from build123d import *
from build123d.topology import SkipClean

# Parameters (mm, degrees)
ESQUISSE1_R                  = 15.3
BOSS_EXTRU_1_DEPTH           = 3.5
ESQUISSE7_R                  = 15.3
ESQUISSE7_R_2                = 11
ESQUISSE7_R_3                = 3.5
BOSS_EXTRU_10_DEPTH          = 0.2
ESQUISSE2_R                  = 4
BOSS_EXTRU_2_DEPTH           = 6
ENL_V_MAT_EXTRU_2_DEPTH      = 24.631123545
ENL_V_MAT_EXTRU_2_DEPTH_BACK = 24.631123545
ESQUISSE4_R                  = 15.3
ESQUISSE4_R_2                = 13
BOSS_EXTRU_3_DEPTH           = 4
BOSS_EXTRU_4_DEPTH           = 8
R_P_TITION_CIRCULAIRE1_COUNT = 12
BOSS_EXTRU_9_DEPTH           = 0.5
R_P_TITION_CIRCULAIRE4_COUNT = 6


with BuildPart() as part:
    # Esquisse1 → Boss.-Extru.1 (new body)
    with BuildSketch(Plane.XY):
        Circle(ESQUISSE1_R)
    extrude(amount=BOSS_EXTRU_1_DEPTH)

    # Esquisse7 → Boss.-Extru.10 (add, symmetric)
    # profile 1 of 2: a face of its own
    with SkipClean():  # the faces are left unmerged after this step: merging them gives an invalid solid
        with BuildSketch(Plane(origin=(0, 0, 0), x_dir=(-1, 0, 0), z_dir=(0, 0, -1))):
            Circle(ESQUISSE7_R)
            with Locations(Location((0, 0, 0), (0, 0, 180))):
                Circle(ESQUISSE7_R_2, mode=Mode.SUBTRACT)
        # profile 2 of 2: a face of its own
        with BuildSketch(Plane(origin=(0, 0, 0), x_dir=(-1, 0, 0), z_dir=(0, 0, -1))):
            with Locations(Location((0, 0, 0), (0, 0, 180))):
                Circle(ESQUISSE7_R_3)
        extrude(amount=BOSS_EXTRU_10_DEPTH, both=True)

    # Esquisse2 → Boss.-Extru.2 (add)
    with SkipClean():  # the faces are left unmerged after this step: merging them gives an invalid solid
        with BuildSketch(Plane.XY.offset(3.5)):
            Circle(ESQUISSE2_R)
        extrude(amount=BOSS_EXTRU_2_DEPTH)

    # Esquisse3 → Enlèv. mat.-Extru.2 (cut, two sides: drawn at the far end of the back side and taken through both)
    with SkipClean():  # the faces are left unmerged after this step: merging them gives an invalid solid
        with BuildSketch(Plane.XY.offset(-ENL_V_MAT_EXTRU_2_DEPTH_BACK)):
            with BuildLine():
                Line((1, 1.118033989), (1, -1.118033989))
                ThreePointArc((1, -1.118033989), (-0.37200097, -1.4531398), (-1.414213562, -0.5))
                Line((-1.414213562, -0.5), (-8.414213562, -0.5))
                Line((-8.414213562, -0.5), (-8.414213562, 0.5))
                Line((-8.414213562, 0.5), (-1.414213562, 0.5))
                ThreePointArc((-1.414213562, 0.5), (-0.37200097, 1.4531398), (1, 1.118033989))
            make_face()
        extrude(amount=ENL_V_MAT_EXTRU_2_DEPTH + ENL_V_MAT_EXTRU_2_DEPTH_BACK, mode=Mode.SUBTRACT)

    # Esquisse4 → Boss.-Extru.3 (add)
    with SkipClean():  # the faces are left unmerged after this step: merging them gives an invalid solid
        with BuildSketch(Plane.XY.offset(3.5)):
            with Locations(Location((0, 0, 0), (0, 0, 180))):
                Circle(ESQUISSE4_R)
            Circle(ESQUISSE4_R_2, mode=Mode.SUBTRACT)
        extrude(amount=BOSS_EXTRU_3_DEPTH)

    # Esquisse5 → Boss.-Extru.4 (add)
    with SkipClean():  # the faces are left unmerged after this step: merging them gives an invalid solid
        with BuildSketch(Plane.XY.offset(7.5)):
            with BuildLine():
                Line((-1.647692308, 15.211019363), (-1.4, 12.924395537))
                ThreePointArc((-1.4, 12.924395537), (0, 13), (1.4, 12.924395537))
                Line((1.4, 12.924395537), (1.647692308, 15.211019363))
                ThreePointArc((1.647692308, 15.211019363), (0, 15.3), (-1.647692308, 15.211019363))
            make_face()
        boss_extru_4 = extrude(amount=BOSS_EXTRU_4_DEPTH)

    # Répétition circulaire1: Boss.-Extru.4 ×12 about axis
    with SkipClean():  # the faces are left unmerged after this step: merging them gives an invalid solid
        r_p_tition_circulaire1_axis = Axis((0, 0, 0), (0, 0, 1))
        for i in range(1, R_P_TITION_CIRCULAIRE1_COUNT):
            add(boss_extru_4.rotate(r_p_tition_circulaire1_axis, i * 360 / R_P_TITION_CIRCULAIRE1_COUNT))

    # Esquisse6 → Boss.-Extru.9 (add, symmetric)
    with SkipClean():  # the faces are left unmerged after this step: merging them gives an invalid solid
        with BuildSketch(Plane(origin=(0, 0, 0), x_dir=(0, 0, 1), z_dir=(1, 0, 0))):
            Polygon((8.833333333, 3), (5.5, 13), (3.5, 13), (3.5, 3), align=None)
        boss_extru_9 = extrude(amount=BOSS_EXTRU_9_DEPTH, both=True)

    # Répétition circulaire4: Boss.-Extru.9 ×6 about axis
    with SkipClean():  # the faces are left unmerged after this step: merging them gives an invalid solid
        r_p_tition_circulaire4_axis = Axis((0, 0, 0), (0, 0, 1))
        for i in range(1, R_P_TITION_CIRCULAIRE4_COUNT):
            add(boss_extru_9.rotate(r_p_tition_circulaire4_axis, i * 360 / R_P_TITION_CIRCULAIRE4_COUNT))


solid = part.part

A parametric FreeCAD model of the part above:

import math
import FreeCAD as App
import Part
import Sketcher

V = App.Vector


def add_polygon(sketch, points):
    """Adds a closed chain of lines whose ends are joined by coincident constraints."""
    first, n = sketch.GeometryCount, len(points)
    for a, b in zip(points, points[1:] + points[:1]):
        sketch.addGeometry(Part.LineSegment(App.Vector(*a, 0), App.Vector(*b, 0)), False)
    for i in range(n):
        sketch.addConstraint(Sketcher.Constraint("Coincident", first + i, 2, first + (i + 1) % n, 1))

doc = App.newDocument("Part")
params = doc.addObject("Spreadsheet::Sheet", "Params")
for row, (alias, value) in enumerate([
    ("sketch1_diameter", "30.6 mm"),
    ("pad1_length", "3.5 mm"),
    ("sketch2_diameter", "22 mm"),
    ("sketch2_diameter2", "7 mm"),
    ("sketch2_diameter3", "30.6 mm"),
    ("pad2_length", "0.4 mm"),
    ("sketch3_diameter", "8 mm"),
    ("pad3_length", "6 mm"),
    ("sketch4_radius", "1.5 mm"),
    ("sketch4_width", "7 mm"),
    ("sketch4_height", "1 mm"),
    ("sketch5_diameter", "26 mm"),
    ("sketch5_diameter2", "30.6 mm"),
    ("pad4_length", "4 mm"),
    ("sketch6_radius", "13 mm"),
    ("sketch6_radius2", "15.3 mm"),
    ("pad5_length", "8 mm"),
    ("sketch7_width", "10 mm"),
    ("sketch7_height", "2 mm"),
    ("pad6_length", "1 mm"),
], start=1):
    params.set(f"A{row}", alias)
    params.set(f"B{row}", "=" + value)
    params.setAlias(f"B{row}", alias)

body = doc.addObject("PartDesign::Body", "Body")

# Sketch on XY plane
sketch1 = doc.addObject("Sketcher::SketchObject", "Sketch")
body.addObject(sketch1)
sketch1.AttachmentSupport = (doc.XY_Plane, [""])
sketch1.MapMode = "FlatFace"
sketch1.addGeometry(Part.Circle(V(0, 0, 0), V(0, 0, 1), 15), False)
sketch1.addConstraint([
    Sketcher.Constraint("Coincident", 0, 3, -1, 1),
    Sketcher.Constraint("Diameter", 0, 30.6),
])
sketch1.setExpression("Constraints[1]", "Params.sketch1_diameter")
pad1 = doc.addObject("PartDesign::Pad", "Pad")
body.addObject(pad1)
pad1.Profile = sketch1
pad1.setExpression("Length", "Params.pad1_length")

# Sketch on XY plane
sketch2 = doc.addObject("Sketcher::SketchObject", "Sketch001")
body.addObject(sketch2)
sketch2.AttachmentSupport = (doc.XY_Plane, [""])
sketch2.MapMode = "FlatFace"
sketch2.addGeometry([
    Part.Circle(V(0, 0, 0), V(0, 0, 1), 15.3),
    Part.Circle(V(0, 0, 0), V(0, 0, 1), 11),
    Part.Circle(V(0, 0, 0), V(0, 0, 1), 3.5),
], False)
sketch2.addConstraint([
    Sketcher.Constraint("Coincident", 0, 3, -1, 1),
    Sketcher.Constraint("Coincident", 1, 3, -1, 1),
    Sketcher.Constraint("Coincident", 2, 3, -1, 1),
    Sketcher.Constraint("Diameter", 1, 22.0),
    Sketcher.Constraint("Diameter", 2, 7.0),
    Sketcher.Constraint("Diameter", 0, 30.6),
])
sketch2.setExpression("Constraints[3]", "Params.sketch2_diameter")
sketch2.setExpression("Constraints[4]", "Params.sketch2_diameter2")
sketch2.setExpression("Constraints[5]", "Params.sketch2_diameter3")
pad2 = doc.addObject("PartDesign::Pad", "Pad001")
body.addObject(pad2)
pad2.Profile = sketch2
pad2.setExpression("Length", "Params.pad2_length")
pad2.Midplane = True

# Sketch on XY plane
sketch3 = doc.addObject("Sketcher::SketchObject", "Sketch002")
body.addObject(sketch3)
sketch3.AttachmentSupport = (doc.XY_Plane, [""])
sketch3.MapMode = "FlatFace"
sketch3.AttachmentOffset = App.Placement(V(0, 0, 3.5), App.Rotation())
sketch3.addGeometry(Part.Circle(V(0, 0, 0), V(0, 0, 1), 4), False)
sketch3.addConstraint([
    Sketcher.Constraint("Coincident", 0, 3, -1, 1),
    Sketcher.Constraint("Diameter", 0, 8.0),
])
sketch3.setExpression("Constraints[1]", "Params.sketch3_diameter")
pad3 = doc.addObject("PartDesign::Pad", "Pad002")
body.addObject(pad3)
pad3.Profile = sketch3
pad3.setExpression("Length", "Params.pad3_length")

# Sketch on XY plane
sketch4 = doc.addObject("Sketcher::SketchObject", "Sketch003")
body.addObject(sketch4)
sketch4.AttachmentSupport = (doc.XY_Plane, [""])
sketch4.MapMode = "FlatFace"
sketch4.addGeometry([
    Part.LineSegment(V(1, -1.1, 0), V(1, 1.1, 0)),  # 0
    Part.ArcOfCircle(Part.Circle(V(0, 0, 0), V(0, 0, 1), 1.5), math.radians(48), math.radians(161)),  # 1
    Part.LineSegment(V(-1.4, 0.5, 0), V(-8.4, 0.5, 0)),  # 2
    Part.LineSegment(V(-8.4, 0.5, 0), V(-8.4, -0.5, 0)),  # 3
    Part.LineSegment(V(-8.4, -0.5, 0), V(-1.4, -0.5, 0)),  # 4
    Part.ArcOfCircle(Part.Circle(V(0, 0, 0), V(0, 0, 1), 1.5), math.radians(-161), math.radians(-48)),  # 5
], False)
sketch4.addConstraint([
    Sketcher.Constraint("Coincident", 0, 2, 1, 1),
    Sketcher.Constraint("Coincident", 1, 2, 2, 1),
    Sketcher.Constraint("Coincident", 2, 2, 3, 1),
    Sketcher.Constraint("Coincident", 3, 2, 4, 1),
    Sketcher.Constraint("Coincident", 4, 2, 5, 1),
    Sketcher.Constraint("Coincident", 5, 2, 0, 1),
    Sketcher.Constraint("Vertical", 0),
    Sketcher.Constraint("Horizontal", 2),
    Sketcher.Constraint("Vertical", 3),
    Sketcher.Constraint("Horizontal", 4),
    Sketcher.Constraint("Coincident", 1, 3, -1, 1),
    Sketcher.Constraint("Coincident", 5, 3, -1, 1),
    Sketcher.Constraint("Equal", 1, 5),
    Sketcher.Constraint("Vertical", 1, 2, 4, 2),
    Sketcher.Constraint("Radius", 1, 1.5),
    Sketcher.Constraint("DistanceX", 2, 2, 2, 1, 7.0),
    Sketcher.Constraint("DistanceY", 3, 2, 3, 1, 1.0),
    Sketcher.Constraint("DistanceX", -1, 1, 0, 2, 1.0),
])
sketch4.setExpression("Constraints[14]", "Params.sketch4_radius")
sketch4.setExpression("Constraints[15]", "Params.sketch4_width")
sketch4.setExpression("Constraints[16]", "Params.sketch4_height")
pocket1 = doc.addObject("PartDesign::Pocket", "Pocket")
body.addObject(pocket1)
pocket1.Profile = sketch4
pocket1.Type = "ThroughAll"
pocket1.Midplane = True

# Sketch on XY plane
sketch5 = doc.addObject("Sketcher::SketchObject", "Sketch004")
body.addObject(sketch5)
sketch5.AttachmentSupport = (doc.XY_Plane, [""])
sketch5.MapMode = "FlatFace"
sketch5.AttachmentOffset = App.Placement(V(0, 0, 3.5), App.Rotation())
sketch5.addGeometry([
    Part.Circle(V(0, 0, 0), V(0, 0, 1), 15),
    Part.Circle(V(0, 0, 0), V(0, 0, 1), 13),
], False)
sketch5.addConstraint([
    Sketcher.Constraint("Coincident", 0, 3, -1, 1),
    Sketcher.Constraint("Coincident", 1, 3, -1, 1),
    Sketcher.Constraint("Diameter", 1, 26.0),
    Sketcher.Constraint("Diameter", 0, 30.6),
])
sketch5.setExpression("Constraints[2]", "Params.sketch5_diameter")
sketch5.setExpression("Constraints[3]", "Params.sketch5_diameter2")
pad4 = doc.addObject("PartDesign::Pad", "Pad003")
body.addObject(pad4)
pad4.Profile = sketch5
pad4.setExpression("Length", "Params.pad4_length")

# Sketch on XY plane
sketch6 = doc.addObject("Sketcher::SketchObject", "Sketch005")
body.addObject(sketch6)
sketch6.AttachmentSupport = (doc.XY_Plane, [""])
sketch6.MapMode = "FlatFace"
sketch6.AttachmentOffset = App.Placement(V(0, 0, 7.5), App.Rotation())
sketch6.addGeometry([
    Part.LineSegment(V(-1.6, 15.2, 0), V(-1.4, 12.9, 0)),
    Part.ArcOfCircle(Part.Circle(V(0, 0, 0), V(0, 0, 1), 13), math.radians(83.82), math.radians(96.18)),
    Part.LineSegment(V(1.4, 12.9, 0), V(1.6, 15.2, 0)),
    Part.ArcOfCircle(Part.Circle(V(0, 0, 0), V(0, 0, 1), 15.3), math.radians(83.82), math.radians(96.18)),
], False)
sketch6.addConstraint([
    Sketcher.Constraint("Coincident", 0, 2, 1, 2),
    Sketcher.Constraint("Coincident", 1, 1, 2, 1),
    Sketcher.Constraint("Coincident", 2, 2, 3, 1),
    Sketcher.Constraint("Coincident", 3, 2, 0, 1),
    Sketcher.Constraint("Coincident", 1, 3, -1, 1),
    Sketcher.Constraint("Coincident", 3, 3, -1, 1),
    Sketcher.Constraint("Horizontal", 0, 2, 1, 1),
    Sketcher.Constraint("Horizontal", 2, 2, 3, 2),
    Sketcher.Constraint("Radius", 1, 13.0),
    Sketcher.Constraint("Radius", 3, 15.3),
    Sketcher.Constraint("DistanceX", 0, 2, -1, 1, 1.4),
    Sketcher.Constraint("DistanceY", -1, 1, 2, 2, 15.211019),
])
sketch6.setExpression("Constraints[8]", "Params.sketch6_radius")
sketch6.setExpression("Constraints[9]", "Params.sketch6_radius2")
pad5 = doc.addObject("PartDesign::Pad", "Pad004")
body.addObject(pad5)
pad5.Profile = sketch6
pad5.setExpression("Length", "Params.pad5_length")
doc.recompute()

polarpattern = doc.addObject("PartDesign::PolarPattern", "PolarPattern")
body.addObject(polarpattern)
polarpattern.Originals = [pad5]
polarpattern.Axis = (doc.Z_Axis, [""])
polarpattern.Angle = 360
polarpattern.Occurrences = 12
body.Tip = polarpattern

# Sketch on YZ plane
sketch7 = doc.addObject("Sketcher::SketchObject", "Sketch006")
body.addObject(sketch7)
sketch7.AttachmentSupport = (doc.YZ_Plane, [""])
sketch7.MapMode = "FlatFace"
add_polygon(sketch7, [(-3, 8.8), (-13, 5.5), (-13, 3.5), (-3, 3.5)])  # lines 0-3
sketch7.addConstraint([
    Sketcher.Constraint("Vertical", 1),
    Sketcher.Constraint("Horizontal", 2),
    Sketcher.Constraint("Vertical", 3),
    Sketcher.Constraint("DistanceX", 2, 1, 2, 2, 10.0),
    Sketcher.Constraint("DistanceY", 1, 2, 1, 1, 2.0),
    Sketcher.Constraint("DistanceX", 0, 2, -1, 1, 13.0),
    Sketcher.Constraint("DistanceY", -1, 1, 0, 2, 5.5),
    Sketcher.Constraint("DistanceY", 3, 1, 3, 2, 5.333333),
])
sketch7.setExpression("Constraints[7]", "Params.sketch7_width")
sketch7.setExpression("Constraints[8]", "Params.sketch7_height")
pad6 = doc.addObject("PartDesign::Pad", "Pad005")
body.addObject(pad6)
pad6.Profile = sketch7
pad6.setExpression("Length", "Params.pad6_length")
pad6.Midplane = True
doc.recompute()

polarpattern2 = doc.addObject("PartDesign::PolarPattern", "PolarPattern001")
body.addObject(polarpattern2)
polarpattern2.Originals = [pad6]
polarpattern2.Axis = (doc.Z_Axis, [""])
polarpattern2.Angle = 360
polarpattern2.Occurrences = 6
body.Tip = polarpattern2

doc.recompute()
